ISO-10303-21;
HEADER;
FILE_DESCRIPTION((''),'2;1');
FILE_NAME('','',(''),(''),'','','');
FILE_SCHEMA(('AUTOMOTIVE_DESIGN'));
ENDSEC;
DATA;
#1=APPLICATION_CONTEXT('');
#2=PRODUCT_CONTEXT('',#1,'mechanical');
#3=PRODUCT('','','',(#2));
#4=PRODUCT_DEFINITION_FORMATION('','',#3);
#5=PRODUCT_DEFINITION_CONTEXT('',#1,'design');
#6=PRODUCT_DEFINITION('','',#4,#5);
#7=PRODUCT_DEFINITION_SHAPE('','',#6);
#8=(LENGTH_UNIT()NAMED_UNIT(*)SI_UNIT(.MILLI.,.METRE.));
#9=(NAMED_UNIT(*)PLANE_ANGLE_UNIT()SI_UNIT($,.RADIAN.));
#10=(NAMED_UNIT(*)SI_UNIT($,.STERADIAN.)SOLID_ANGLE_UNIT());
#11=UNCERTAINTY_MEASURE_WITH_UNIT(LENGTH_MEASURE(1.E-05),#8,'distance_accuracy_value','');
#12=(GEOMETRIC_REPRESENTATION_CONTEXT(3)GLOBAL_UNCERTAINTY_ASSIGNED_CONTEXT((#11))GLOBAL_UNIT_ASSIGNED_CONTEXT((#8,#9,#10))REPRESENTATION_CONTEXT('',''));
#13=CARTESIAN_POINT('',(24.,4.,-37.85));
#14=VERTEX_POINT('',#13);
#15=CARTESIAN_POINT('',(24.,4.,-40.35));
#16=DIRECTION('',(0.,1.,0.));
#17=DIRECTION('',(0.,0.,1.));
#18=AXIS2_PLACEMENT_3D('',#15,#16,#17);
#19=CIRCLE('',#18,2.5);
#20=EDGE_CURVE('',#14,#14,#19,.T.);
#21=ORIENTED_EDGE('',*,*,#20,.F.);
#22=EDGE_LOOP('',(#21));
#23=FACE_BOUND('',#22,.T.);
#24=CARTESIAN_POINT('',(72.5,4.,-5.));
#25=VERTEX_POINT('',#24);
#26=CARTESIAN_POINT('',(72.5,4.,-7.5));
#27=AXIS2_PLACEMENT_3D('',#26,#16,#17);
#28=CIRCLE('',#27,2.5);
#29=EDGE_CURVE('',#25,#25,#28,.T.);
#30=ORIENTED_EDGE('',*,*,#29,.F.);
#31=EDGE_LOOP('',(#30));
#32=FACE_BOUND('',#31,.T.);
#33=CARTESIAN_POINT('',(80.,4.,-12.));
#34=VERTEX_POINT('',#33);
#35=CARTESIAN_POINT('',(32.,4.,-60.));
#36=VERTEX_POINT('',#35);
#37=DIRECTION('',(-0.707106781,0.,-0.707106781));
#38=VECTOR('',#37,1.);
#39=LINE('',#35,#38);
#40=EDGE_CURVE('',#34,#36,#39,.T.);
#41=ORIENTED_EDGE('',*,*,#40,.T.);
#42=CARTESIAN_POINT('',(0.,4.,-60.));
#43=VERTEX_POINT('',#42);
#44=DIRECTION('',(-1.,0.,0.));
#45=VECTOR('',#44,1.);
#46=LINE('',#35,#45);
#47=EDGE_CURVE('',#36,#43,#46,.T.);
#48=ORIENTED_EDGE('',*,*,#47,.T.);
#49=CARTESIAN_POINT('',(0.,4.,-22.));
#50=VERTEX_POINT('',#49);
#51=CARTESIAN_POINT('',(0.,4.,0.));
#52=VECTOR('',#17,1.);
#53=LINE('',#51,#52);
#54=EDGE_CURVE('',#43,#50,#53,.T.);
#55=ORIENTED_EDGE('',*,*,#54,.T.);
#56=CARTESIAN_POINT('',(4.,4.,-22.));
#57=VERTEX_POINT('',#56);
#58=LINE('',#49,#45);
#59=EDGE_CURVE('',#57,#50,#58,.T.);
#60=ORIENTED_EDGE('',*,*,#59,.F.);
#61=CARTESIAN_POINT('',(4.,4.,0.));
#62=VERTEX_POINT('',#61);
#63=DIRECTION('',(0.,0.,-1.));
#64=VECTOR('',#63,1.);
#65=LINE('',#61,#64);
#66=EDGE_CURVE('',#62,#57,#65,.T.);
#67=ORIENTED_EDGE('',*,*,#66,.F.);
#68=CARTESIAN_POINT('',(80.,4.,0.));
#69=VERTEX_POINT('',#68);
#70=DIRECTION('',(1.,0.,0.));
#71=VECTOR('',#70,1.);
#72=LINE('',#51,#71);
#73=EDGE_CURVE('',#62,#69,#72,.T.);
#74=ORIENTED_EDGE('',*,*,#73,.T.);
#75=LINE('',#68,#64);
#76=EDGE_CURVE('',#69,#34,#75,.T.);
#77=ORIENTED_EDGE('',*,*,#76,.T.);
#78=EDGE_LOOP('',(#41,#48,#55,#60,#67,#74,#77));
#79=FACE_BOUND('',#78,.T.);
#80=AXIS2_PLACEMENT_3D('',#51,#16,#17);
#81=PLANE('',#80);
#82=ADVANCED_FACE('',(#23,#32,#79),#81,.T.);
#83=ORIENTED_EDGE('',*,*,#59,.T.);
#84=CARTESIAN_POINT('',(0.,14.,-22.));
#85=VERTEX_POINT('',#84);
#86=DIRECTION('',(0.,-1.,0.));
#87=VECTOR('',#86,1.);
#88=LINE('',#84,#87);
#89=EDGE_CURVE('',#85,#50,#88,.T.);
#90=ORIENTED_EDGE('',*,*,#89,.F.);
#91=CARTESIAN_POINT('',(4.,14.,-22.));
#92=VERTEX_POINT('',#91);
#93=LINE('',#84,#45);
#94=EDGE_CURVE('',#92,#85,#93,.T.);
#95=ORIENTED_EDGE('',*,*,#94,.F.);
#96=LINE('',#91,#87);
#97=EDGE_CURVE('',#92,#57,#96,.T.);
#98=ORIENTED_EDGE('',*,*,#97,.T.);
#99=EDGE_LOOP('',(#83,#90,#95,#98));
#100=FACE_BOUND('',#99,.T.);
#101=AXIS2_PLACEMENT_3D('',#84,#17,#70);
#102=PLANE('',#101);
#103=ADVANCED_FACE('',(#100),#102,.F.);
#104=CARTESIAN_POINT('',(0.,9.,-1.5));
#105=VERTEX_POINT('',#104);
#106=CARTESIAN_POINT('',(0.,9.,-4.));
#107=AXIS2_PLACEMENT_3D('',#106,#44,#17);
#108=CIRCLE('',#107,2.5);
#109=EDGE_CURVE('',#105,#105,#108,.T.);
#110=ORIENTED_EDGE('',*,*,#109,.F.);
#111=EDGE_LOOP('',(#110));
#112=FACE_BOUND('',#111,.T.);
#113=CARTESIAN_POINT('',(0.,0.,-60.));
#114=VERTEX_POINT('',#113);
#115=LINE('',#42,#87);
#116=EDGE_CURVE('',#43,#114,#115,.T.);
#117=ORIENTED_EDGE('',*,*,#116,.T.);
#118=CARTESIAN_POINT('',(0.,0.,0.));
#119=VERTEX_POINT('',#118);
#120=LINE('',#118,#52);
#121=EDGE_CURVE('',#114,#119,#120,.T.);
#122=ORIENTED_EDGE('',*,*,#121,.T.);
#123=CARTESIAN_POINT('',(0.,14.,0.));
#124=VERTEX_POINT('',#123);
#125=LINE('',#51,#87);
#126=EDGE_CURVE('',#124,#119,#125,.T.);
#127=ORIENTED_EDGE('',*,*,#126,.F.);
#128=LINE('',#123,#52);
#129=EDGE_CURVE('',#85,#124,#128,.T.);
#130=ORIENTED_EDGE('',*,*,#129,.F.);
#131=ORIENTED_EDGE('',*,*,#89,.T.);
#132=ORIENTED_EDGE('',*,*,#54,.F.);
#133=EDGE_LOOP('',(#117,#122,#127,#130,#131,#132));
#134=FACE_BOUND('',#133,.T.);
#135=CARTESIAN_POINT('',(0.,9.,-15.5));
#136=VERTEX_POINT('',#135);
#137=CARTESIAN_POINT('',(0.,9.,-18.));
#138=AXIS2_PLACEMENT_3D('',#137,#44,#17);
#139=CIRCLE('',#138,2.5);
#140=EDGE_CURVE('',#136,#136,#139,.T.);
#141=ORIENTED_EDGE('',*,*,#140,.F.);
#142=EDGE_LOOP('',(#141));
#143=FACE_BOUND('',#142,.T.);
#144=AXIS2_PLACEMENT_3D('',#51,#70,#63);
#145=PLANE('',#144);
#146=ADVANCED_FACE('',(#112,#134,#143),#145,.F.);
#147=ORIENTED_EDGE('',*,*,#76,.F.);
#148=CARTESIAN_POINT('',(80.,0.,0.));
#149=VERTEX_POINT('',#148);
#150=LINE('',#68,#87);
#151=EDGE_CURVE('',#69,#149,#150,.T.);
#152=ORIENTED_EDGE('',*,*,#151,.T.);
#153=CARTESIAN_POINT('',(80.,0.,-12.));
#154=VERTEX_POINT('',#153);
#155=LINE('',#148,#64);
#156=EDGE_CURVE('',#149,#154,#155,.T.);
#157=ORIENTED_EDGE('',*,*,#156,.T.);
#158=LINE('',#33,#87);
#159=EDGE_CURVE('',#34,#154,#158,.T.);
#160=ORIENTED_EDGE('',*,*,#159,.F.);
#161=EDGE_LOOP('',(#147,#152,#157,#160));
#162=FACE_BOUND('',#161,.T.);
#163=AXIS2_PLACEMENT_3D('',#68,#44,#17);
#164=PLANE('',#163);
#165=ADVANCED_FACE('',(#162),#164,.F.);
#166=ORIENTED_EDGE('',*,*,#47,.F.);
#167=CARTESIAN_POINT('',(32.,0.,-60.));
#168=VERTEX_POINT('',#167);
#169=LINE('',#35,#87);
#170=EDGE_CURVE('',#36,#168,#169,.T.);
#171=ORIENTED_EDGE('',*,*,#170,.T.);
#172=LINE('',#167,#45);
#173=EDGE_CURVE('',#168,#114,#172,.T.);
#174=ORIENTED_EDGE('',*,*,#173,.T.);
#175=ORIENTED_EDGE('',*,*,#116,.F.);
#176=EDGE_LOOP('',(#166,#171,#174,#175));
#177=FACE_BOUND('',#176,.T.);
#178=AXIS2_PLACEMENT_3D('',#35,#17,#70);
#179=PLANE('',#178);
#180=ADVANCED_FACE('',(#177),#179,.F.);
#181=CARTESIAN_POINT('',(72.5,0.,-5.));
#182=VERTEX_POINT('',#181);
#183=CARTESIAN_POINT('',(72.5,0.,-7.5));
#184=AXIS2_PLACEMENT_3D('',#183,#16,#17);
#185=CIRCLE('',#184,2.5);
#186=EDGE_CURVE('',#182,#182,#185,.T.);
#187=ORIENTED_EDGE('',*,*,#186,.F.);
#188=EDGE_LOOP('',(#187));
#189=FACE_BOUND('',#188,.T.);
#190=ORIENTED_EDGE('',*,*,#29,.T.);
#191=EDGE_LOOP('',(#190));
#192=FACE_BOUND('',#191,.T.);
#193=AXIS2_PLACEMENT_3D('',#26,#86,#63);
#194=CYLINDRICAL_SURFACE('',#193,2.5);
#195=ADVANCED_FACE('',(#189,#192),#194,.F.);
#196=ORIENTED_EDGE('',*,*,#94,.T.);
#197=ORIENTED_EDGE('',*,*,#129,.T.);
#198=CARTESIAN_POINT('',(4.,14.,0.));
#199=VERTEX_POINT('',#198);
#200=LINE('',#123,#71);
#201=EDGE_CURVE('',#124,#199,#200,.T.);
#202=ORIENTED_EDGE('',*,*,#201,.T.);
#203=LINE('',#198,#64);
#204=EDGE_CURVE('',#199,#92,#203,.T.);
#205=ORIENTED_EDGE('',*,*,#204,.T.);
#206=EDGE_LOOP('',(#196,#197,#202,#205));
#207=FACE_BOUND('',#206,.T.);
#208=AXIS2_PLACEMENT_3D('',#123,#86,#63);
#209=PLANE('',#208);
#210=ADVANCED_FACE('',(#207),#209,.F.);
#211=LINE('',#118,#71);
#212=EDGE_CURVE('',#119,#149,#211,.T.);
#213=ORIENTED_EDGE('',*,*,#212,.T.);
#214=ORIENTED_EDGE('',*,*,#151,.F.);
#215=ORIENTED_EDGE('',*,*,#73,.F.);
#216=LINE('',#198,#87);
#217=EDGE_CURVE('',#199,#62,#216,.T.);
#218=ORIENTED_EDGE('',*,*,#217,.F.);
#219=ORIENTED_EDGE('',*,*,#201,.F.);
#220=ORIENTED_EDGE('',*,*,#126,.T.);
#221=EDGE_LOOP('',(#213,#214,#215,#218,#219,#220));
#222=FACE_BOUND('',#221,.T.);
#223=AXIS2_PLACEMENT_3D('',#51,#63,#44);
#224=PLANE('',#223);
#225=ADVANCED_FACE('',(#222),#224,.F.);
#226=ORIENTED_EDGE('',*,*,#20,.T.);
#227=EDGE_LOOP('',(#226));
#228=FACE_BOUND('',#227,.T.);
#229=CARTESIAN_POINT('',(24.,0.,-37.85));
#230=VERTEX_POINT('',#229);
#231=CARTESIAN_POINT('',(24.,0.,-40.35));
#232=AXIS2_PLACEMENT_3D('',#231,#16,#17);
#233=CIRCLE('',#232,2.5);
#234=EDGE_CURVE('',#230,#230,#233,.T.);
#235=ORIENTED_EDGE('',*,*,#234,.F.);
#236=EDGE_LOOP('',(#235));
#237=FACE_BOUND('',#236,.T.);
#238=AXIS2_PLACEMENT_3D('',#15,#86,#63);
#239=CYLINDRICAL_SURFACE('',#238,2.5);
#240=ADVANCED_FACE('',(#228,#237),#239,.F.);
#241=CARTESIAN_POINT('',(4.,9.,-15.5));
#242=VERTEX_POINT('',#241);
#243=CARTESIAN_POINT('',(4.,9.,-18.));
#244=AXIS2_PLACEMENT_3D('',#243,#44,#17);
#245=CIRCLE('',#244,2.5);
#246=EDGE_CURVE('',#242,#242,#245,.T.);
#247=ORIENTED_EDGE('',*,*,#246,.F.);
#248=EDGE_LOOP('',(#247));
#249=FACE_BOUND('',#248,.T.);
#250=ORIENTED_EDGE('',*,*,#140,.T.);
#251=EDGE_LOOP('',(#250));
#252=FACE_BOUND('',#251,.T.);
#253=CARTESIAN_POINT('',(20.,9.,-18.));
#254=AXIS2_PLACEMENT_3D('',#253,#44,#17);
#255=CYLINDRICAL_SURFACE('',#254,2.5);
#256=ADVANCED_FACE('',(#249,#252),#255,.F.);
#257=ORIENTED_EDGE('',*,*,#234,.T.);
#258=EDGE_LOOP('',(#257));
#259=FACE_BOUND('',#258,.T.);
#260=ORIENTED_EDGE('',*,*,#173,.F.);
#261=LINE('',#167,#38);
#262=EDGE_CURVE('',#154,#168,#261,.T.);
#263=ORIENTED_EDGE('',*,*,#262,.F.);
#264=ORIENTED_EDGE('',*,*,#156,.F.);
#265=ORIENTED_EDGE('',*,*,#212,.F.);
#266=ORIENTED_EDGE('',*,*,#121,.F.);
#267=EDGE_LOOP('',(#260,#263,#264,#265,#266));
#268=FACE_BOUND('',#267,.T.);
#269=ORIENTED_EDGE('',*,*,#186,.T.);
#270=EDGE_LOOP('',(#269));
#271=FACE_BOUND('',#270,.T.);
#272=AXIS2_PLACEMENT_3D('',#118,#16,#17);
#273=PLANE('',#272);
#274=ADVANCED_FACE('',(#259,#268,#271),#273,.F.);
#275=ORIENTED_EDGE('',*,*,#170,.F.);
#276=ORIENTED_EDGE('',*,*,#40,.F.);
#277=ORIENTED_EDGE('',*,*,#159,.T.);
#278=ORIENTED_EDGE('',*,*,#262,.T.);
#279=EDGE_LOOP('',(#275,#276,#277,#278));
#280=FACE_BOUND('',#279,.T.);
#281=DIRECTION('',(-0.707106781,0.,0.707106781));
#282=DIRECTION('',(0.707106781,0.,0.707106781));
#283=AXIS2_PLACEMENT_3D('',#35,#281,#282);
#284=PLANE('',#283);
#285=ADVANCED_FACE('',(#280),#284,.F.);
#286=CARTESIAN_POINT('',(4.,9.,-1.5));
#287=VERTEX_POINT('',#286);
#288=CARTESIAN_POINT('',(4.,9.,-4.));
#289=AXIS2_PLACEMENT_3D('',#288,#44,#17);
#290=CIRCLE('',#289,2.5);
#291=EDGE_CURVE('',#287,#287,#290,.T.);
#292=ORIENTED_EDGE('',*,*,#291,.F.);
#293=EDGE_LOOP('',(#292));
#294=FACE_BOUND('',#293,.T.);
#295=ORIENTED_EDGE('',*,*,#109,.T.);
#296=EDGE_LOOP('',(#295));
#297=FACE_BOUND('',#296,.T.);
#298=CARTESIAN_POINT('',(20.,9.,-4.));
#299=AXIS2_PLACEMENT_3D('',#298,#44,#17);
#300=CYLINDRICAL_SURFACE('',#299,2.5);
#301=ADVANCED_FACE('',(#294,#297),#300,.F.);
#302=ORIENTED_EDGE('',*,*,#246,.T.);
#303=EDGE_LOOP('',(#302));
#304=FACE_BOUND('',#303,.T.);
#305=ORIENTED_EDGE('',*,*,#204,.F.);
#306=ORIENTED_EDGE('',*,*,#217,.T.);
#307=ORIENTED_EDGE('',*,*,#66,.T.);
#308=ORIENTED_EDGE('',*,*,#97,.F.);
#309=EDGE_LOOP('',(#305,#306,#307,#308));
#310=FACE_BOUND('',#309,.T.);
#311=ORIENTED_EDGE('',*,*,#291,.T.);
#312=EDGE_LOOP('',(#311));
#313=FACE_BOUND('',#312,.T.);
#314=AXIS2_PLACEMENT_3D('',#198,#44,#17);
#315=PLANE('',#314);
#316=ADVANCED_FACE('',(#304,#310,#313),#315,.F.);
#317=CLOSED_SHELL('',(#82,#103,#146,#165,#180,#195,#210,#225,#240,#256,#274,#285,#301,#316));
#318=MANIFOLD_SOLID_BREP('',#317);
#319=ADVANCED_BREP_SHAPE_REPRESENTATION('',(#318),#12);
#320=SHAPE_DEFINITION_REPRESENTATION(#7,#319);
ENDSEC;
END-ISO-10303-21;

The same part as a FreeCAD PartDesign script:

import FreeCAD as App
import Part
import Sketcher

V = App.Vector
Q = App.Units.Quantity

doc = App.newDocument("Part")
body = doc.addObject("PartDesign::Body", "Body")

# Sketch on XZ plane
sketch1 = doc.addObject("Sketcher::SketchObject", "Sketch")
body.addObject(sketch1)
sketch1.AttachmentSupport = (doc.XZ_Plane, [""])
sketch1.MapMode = "FlatFace"
sketch1.addGeometry(Part.LineSegment(V(80, -12, 0), V(32, -60, 0)), False)
sketch1.addGeometry(Part.LineSegment(V(32, -60, 0), V(0, -60, 0)), False)
sketch1.addGeometry(Part.LineSegment(V(0, -60, 0), V(0, 0, 0)), False)
sketch1.addGeometry(Part.LineSegment(V(0, 0, 0), V(80, 0, 0)), False)
sketch1.addGeometry(Part.LineSegment(V(80, 0, 0), V(80, -12, 0)), False)
sketch1.addGeometry(Part.Circle(V(72.5, -7.5, 0), V(0, 0, 1), 2.5), False)
sketch1.addGeometry(Part.Circle(V(24, -40.4, 0), V(0, 0, 1), 2.5), False)
sketch1.addConstraint(Sketcher.Constraint("Coincident", 0, 2, 1, 1))
sketch1.addConstraint(Sketcher.Constraint("Coincident", 1, 2, 2, 1))
sketch1.addConstraint(Sketcher.Constraint("Coincident", 2, 2, 3, 1))
sketch1.addConstraint(Sketcher.Constraint("Coincident", 3, 2, 4, 1))
sketch1.addConstraint(Sketcher.Constraint("Coincident", 4, 2, 0, 1))
sketch1.addConstraint(Sketcher.Constraint("Horizontal", 1))
sketch1.addConstraint(Sketcher.Constraint("Vertical", 2))
sketch1.addConstraint(Sketcher.Constraint("Horizontal", 3))
sketch1.addConstraint(Sketcher.Constraint("Vertical", 4))
sketch1.addConstraint(Sketcher.Constraint("Coincident", 2, 2, -1, 1))
sketch1.addConstraint(Sketcher.Constraint("Equal", 5, 6))
sketch1.addConstraint(Sketcher.Constraint("Diameter", 5, Q("5 mm")))
sketch1.addConstraint(Sketcher.Constraint("DistanceX", 1, 2, 1, 1, Q("32 mm")))
sketch1.addConstraint(Sketcher.Constraint("DistanceX", 3, 1, 3, 2, Q("80 mm")))
sketch1.addConstraint(Sketcher.Constraint("DistanceY", 2, 1, 2, 2, Q("60 mm")))
sketch1.addConstraint(Sketcher.Constraint("DistanceY", 4, 2, 4, 1, Q("12 mm")))
sketch1.addConstraint(Sketcher.Constraint("DistanceX", -1, 1, 6, 3, Q("24 mm")))
sketch1.addConstraint(Sketcher.Constraint("DistanceX", -1, 1, 5, 3, Q("72.5 mm")))
sketch1.addConstraint(Sketcher.Constraint("DistanceY", 5, 3, -1, 1, Q("7.5 mm")))
sketch1.addConstraint(Sketcher.Constraint("DistanceY", 6, 3, -1, 1, Q("40.35 mm")))
pad1 = doc.addObject("PartDesign::Pad", "Pad")
body.addObject(pad1)
pad1.Profile = sketch1
pad1.Length = 4
pad1.Reversed = True

# Sketch on XZ plane
sketch2 = doc.addObject("Sketcher::SketchObject", "Sketch001")
body.addObject(sketch2)
sketch2.AttachmentSupport = (doc.XZ_Plane, [""])
sketch2.MapMode = "FlatFace"
sketch2.AttachmentOffset = App.Placement(V(0, 0, -4), App.Rotation())
sketch2.addGeometry(Part.LineSegment(V(0, -22, 0), V(0, 0, 0)), False)
sketch2.addGeometry(Part.LineSegment(V(0, 0, 0), V(4, 0, 0)), False)
sketch2.addGeometry(Part.LineSegment(V(4, 0, 0), V(4, -22, 0)), False)
sketch2.addGeometry(Part.LineSegment(V(4, -22, 0), V(0, -22, 0)), False)
sketch2.addConstraint(Sketcher.Constraint("Coincident", 0, 2, 1, 1))
sketch2.addConstraint(Sketcher.Constraint("Coincident", 1, 2, 2, 1))
sketch2.addConstraint(Sketcher.Constraint("Coincident", 2, 2, 3, 1))
sketch2.addConstraint(Sketcher.Constraint("Coincident", 3, 2, 0, 1))
sketch2.addConstraint(Sketcher.Constraint("Vertical", 0))
sketch2.addConstraint(Sketcher.Constraint("Horizontal", 1))
sketch2.addConstraint(Sketcher.Constraint("Vertical", 2))
sketch2.addConstraint(Sketcher.Constraint("Horizontal", 3))
sketch2.addConstraint(Sketcher.Constraint("Coincident", 0, 2, -1, 1))
sketch2.addConstraint(Sketcher.Constraint("DistanceX", 1, 1, 1, 2, Q("4 mm")))
sketch2.addConstraint(Sketcher.Constraint("DistanceY", 0, 1, 0, 2, Q("22 mm")))
pad2 = doc.addObject("PartDesign::Pad", "Pad001")
body.addObject(pad2)
pad2.Profile = sketch2
pad2.Length = 10
pad2.Reversed = True

# Sketch on YZ plane
sketch3 = doc.addObject("Sketcher::SketchObject", "Sketch002")
body.addObject(sketch3)
sketch3.AttachmentSupport = (doc.YZ_Plane, [""])
sketch3.MapMode = "FlatFace"
sketch3.addGeometry(Part.Circle(V(9, -18, 0), V(0, 0, 1), 2.5), False)
sketch3.addGeometry(Part.Circle(V(9, -4, 0), V(0, 0, 1), 2.5), False)
sketch3.addConstraint(Sketcher.Constraint("Equal", 0, 1))
sketch3.addConstraint(Sketcher.Constraint("Vertical", 0, 3, 1, 3))
sketch3.addConstraint(Sketcher.Constraint("Diameter", 0, Q("5 mm")))
sketch3.addConstraint(Sketcher.Constraint("DistanceX", -1, 1, 0, 3, Q("9 mm")))
sketch3.addConstraint(Sketcher.Constraint("DistanceY", 0, 3, -1, 1, Q("18 mm")))
sketch3.addConstraint(Sketcher.Constraint("DistanceY", 1, 3, -1, 1, Q("4 mm")))
pocket1 = doc.addObject("PartDesign::Pocket", "Pocket")
body.addObject(pocket1)
pocket1.Profile = sketch3
pocket1.Length = 20
pocket1.Reversed = True

doc.recompute()
